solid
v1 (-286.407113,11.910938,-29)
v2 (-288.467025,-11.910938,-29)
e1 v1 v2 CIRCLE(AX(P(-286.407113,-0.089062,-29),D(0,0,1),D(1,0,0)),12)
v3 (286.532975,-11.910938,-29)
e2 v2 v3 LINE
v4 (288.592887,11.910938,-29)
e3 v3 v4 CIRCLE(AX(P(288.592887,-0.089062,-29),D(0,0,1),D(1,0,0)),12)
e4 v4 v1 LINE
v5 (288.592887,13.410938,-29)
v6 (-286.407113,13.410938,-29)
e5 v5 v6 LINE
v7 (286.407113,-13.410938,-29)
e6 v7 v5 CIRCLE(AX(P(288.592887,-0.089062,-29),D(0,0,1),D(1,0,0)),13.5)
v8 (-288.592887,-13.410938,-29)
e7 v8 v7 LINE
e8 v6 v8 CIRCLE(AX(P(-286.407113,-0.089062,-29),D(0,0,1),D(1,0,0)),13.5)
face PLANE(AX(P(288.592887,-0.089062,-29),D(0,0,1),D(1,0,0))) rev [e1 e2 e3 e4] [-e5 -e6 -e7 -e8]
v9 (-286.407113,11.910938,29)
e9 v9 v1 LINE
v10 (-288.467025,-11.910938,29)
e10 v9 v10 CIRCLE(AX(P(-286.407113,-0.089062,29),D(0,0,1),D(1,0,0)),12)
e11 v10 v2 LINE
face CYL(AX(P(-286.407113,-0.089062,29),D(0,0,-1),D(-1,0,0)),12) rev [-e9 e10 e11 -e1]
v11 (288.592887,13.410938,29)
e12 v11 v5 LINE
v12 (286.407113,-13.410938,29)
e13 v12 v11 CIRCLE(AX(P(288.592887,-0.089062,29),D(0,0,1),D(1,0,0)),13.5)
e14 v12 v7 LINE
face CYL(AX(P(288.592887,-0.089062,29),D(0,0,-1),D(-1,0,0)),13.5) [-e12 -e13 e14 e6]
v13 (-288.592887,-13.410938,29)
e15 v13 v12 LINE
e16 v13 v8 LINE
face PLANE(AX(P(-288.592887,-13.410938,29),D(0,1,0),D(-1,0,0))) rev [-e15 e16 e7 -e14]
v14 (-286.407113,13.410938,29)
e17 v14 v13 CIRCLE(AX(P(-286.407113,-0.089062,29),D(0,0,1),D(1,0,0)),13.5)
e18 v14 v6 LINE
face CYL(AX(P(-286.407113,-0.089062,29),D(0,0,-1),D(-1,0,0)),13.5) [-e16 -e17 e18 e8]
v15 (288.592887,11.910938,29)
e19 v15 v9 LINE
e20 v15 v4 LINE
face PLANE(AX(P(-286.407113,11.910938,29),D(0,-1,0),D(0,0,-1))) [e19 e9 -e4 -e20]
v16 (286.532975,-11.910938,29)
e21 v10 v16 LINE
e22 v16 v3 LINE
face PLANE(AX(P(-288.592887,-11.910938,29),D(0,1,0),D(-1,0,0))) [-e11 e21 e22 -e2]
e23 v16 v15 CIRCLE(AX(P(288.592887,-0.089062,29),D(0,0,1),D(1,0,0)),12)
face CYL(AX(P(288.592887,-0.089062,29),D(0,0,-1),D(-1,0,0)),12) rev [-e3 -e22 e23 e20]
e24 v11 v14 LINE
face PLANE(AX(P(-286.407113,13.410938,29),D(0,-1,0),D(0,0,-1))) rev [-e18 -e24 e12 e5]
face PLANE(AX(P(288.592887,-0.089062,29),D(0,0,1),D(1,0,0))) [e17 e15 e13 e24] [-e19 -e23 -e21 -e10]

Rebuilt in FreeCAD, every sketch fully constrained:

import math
import FreeCAD as App
import Part
import Sketcher

V = App.Vector


def faces_at(feature, points):
    """Names of the faces that lie closest to the given points."""
    faces = feature.Shape.Faces
    near = lambda p: min(range(len(faces)), key=lambda i: faces[i].distToShape(Part.Vertex(*p))[0])
    return sorted({f"Face{near(p) + 1}" for p in points})

doc = App.newDocument("Part")
body = doc.addObject("PartDesign::Body", "Body")

# Sketch on XY plane
sketch1 = body.newObject("Sketcher::SketchObject", "Sketch")
sketch1.AttachmentSupport = (doc.getObject("XY_Plane"), [""])
sketch1.MapMode = "FlatFace"
sketch1.addGeometry(Part.LineSegment(V(-288.592887, -13.410938, 0), V(286.407113, -13.410938, 0)), False)
sketch1.addGeometry(Part.ArcOfCircle(Part.Circle(V(288.592887, -0.089062, 0), V(0, 0, 1), 13.5), math.radians(-99.317728), math.radians(90)), False)
sketch1.addGeometry(Part.LineSegment(V(288.592887, 13.410938, 0), V(-286.407113, 13.410938, 0)), False)
sketch1.addGeometry(Part.ArcOfCircle(Part.Circle(V(-286.407113, -0.089062, 0), V(0, 0, 1), 13.5), math.radians(90), math.radians(260.682272)), False)
sketch1.addConstraint(Sketcher.Constraint("Coincident", 0, 2, 1, 1))
sketch1.addConstraint(Sketcher.Constraint("Tangent", 1, 2, 2, 1))
sketch1.addConstraint(Sketcher.Constraint("Tangent", 2, 2, 3, 1))
sketch1.addConstraint(Sketcher.Constraint("Coincident", 3, 2, 0, 1))
sketch1.addConstraint(Sketcher.Constraint("Horizontal", 0))
sketch1.addConstraint(Sketcher.Constraint("Horizontal", 2))
sketch1.addConstraint(Sketcher.Constraint("Equal", 1, 3))
sketch1.addConstraint(Sketcher.Constraint("Symmetric", 0, 2, 2, 2, -1, 1))
sketch1.addConstraint(Sketcher.Constraint("Radius", 1, 13.5))
sketch1.addConstraint(Sketcher.Constraint("DistanceX", 0, 1, 0, 2, 575.0))
sketch1.addConstraint(Sketcher.Constraint("DistanceY", 1, 3, -1, 1, 0.089062))
pad1 = body.newObject("PartDesign::Pad", "Pad")
pad1.Profile = sketch1
pad1.Length = 58
pad1.Midplane = True
doc.recompute()

thickness = body.newObject("PartDesign::Thickness", "Thickness")
thickness.Base = (pad1, faces_at(pad1, [(1.093, -0.089, 29), (1.093, -0.089, -29)]))
thickness.Value = 1.5
thickness.Reversed = True
thickness.Join = "Intersection"

doc.recompute()
